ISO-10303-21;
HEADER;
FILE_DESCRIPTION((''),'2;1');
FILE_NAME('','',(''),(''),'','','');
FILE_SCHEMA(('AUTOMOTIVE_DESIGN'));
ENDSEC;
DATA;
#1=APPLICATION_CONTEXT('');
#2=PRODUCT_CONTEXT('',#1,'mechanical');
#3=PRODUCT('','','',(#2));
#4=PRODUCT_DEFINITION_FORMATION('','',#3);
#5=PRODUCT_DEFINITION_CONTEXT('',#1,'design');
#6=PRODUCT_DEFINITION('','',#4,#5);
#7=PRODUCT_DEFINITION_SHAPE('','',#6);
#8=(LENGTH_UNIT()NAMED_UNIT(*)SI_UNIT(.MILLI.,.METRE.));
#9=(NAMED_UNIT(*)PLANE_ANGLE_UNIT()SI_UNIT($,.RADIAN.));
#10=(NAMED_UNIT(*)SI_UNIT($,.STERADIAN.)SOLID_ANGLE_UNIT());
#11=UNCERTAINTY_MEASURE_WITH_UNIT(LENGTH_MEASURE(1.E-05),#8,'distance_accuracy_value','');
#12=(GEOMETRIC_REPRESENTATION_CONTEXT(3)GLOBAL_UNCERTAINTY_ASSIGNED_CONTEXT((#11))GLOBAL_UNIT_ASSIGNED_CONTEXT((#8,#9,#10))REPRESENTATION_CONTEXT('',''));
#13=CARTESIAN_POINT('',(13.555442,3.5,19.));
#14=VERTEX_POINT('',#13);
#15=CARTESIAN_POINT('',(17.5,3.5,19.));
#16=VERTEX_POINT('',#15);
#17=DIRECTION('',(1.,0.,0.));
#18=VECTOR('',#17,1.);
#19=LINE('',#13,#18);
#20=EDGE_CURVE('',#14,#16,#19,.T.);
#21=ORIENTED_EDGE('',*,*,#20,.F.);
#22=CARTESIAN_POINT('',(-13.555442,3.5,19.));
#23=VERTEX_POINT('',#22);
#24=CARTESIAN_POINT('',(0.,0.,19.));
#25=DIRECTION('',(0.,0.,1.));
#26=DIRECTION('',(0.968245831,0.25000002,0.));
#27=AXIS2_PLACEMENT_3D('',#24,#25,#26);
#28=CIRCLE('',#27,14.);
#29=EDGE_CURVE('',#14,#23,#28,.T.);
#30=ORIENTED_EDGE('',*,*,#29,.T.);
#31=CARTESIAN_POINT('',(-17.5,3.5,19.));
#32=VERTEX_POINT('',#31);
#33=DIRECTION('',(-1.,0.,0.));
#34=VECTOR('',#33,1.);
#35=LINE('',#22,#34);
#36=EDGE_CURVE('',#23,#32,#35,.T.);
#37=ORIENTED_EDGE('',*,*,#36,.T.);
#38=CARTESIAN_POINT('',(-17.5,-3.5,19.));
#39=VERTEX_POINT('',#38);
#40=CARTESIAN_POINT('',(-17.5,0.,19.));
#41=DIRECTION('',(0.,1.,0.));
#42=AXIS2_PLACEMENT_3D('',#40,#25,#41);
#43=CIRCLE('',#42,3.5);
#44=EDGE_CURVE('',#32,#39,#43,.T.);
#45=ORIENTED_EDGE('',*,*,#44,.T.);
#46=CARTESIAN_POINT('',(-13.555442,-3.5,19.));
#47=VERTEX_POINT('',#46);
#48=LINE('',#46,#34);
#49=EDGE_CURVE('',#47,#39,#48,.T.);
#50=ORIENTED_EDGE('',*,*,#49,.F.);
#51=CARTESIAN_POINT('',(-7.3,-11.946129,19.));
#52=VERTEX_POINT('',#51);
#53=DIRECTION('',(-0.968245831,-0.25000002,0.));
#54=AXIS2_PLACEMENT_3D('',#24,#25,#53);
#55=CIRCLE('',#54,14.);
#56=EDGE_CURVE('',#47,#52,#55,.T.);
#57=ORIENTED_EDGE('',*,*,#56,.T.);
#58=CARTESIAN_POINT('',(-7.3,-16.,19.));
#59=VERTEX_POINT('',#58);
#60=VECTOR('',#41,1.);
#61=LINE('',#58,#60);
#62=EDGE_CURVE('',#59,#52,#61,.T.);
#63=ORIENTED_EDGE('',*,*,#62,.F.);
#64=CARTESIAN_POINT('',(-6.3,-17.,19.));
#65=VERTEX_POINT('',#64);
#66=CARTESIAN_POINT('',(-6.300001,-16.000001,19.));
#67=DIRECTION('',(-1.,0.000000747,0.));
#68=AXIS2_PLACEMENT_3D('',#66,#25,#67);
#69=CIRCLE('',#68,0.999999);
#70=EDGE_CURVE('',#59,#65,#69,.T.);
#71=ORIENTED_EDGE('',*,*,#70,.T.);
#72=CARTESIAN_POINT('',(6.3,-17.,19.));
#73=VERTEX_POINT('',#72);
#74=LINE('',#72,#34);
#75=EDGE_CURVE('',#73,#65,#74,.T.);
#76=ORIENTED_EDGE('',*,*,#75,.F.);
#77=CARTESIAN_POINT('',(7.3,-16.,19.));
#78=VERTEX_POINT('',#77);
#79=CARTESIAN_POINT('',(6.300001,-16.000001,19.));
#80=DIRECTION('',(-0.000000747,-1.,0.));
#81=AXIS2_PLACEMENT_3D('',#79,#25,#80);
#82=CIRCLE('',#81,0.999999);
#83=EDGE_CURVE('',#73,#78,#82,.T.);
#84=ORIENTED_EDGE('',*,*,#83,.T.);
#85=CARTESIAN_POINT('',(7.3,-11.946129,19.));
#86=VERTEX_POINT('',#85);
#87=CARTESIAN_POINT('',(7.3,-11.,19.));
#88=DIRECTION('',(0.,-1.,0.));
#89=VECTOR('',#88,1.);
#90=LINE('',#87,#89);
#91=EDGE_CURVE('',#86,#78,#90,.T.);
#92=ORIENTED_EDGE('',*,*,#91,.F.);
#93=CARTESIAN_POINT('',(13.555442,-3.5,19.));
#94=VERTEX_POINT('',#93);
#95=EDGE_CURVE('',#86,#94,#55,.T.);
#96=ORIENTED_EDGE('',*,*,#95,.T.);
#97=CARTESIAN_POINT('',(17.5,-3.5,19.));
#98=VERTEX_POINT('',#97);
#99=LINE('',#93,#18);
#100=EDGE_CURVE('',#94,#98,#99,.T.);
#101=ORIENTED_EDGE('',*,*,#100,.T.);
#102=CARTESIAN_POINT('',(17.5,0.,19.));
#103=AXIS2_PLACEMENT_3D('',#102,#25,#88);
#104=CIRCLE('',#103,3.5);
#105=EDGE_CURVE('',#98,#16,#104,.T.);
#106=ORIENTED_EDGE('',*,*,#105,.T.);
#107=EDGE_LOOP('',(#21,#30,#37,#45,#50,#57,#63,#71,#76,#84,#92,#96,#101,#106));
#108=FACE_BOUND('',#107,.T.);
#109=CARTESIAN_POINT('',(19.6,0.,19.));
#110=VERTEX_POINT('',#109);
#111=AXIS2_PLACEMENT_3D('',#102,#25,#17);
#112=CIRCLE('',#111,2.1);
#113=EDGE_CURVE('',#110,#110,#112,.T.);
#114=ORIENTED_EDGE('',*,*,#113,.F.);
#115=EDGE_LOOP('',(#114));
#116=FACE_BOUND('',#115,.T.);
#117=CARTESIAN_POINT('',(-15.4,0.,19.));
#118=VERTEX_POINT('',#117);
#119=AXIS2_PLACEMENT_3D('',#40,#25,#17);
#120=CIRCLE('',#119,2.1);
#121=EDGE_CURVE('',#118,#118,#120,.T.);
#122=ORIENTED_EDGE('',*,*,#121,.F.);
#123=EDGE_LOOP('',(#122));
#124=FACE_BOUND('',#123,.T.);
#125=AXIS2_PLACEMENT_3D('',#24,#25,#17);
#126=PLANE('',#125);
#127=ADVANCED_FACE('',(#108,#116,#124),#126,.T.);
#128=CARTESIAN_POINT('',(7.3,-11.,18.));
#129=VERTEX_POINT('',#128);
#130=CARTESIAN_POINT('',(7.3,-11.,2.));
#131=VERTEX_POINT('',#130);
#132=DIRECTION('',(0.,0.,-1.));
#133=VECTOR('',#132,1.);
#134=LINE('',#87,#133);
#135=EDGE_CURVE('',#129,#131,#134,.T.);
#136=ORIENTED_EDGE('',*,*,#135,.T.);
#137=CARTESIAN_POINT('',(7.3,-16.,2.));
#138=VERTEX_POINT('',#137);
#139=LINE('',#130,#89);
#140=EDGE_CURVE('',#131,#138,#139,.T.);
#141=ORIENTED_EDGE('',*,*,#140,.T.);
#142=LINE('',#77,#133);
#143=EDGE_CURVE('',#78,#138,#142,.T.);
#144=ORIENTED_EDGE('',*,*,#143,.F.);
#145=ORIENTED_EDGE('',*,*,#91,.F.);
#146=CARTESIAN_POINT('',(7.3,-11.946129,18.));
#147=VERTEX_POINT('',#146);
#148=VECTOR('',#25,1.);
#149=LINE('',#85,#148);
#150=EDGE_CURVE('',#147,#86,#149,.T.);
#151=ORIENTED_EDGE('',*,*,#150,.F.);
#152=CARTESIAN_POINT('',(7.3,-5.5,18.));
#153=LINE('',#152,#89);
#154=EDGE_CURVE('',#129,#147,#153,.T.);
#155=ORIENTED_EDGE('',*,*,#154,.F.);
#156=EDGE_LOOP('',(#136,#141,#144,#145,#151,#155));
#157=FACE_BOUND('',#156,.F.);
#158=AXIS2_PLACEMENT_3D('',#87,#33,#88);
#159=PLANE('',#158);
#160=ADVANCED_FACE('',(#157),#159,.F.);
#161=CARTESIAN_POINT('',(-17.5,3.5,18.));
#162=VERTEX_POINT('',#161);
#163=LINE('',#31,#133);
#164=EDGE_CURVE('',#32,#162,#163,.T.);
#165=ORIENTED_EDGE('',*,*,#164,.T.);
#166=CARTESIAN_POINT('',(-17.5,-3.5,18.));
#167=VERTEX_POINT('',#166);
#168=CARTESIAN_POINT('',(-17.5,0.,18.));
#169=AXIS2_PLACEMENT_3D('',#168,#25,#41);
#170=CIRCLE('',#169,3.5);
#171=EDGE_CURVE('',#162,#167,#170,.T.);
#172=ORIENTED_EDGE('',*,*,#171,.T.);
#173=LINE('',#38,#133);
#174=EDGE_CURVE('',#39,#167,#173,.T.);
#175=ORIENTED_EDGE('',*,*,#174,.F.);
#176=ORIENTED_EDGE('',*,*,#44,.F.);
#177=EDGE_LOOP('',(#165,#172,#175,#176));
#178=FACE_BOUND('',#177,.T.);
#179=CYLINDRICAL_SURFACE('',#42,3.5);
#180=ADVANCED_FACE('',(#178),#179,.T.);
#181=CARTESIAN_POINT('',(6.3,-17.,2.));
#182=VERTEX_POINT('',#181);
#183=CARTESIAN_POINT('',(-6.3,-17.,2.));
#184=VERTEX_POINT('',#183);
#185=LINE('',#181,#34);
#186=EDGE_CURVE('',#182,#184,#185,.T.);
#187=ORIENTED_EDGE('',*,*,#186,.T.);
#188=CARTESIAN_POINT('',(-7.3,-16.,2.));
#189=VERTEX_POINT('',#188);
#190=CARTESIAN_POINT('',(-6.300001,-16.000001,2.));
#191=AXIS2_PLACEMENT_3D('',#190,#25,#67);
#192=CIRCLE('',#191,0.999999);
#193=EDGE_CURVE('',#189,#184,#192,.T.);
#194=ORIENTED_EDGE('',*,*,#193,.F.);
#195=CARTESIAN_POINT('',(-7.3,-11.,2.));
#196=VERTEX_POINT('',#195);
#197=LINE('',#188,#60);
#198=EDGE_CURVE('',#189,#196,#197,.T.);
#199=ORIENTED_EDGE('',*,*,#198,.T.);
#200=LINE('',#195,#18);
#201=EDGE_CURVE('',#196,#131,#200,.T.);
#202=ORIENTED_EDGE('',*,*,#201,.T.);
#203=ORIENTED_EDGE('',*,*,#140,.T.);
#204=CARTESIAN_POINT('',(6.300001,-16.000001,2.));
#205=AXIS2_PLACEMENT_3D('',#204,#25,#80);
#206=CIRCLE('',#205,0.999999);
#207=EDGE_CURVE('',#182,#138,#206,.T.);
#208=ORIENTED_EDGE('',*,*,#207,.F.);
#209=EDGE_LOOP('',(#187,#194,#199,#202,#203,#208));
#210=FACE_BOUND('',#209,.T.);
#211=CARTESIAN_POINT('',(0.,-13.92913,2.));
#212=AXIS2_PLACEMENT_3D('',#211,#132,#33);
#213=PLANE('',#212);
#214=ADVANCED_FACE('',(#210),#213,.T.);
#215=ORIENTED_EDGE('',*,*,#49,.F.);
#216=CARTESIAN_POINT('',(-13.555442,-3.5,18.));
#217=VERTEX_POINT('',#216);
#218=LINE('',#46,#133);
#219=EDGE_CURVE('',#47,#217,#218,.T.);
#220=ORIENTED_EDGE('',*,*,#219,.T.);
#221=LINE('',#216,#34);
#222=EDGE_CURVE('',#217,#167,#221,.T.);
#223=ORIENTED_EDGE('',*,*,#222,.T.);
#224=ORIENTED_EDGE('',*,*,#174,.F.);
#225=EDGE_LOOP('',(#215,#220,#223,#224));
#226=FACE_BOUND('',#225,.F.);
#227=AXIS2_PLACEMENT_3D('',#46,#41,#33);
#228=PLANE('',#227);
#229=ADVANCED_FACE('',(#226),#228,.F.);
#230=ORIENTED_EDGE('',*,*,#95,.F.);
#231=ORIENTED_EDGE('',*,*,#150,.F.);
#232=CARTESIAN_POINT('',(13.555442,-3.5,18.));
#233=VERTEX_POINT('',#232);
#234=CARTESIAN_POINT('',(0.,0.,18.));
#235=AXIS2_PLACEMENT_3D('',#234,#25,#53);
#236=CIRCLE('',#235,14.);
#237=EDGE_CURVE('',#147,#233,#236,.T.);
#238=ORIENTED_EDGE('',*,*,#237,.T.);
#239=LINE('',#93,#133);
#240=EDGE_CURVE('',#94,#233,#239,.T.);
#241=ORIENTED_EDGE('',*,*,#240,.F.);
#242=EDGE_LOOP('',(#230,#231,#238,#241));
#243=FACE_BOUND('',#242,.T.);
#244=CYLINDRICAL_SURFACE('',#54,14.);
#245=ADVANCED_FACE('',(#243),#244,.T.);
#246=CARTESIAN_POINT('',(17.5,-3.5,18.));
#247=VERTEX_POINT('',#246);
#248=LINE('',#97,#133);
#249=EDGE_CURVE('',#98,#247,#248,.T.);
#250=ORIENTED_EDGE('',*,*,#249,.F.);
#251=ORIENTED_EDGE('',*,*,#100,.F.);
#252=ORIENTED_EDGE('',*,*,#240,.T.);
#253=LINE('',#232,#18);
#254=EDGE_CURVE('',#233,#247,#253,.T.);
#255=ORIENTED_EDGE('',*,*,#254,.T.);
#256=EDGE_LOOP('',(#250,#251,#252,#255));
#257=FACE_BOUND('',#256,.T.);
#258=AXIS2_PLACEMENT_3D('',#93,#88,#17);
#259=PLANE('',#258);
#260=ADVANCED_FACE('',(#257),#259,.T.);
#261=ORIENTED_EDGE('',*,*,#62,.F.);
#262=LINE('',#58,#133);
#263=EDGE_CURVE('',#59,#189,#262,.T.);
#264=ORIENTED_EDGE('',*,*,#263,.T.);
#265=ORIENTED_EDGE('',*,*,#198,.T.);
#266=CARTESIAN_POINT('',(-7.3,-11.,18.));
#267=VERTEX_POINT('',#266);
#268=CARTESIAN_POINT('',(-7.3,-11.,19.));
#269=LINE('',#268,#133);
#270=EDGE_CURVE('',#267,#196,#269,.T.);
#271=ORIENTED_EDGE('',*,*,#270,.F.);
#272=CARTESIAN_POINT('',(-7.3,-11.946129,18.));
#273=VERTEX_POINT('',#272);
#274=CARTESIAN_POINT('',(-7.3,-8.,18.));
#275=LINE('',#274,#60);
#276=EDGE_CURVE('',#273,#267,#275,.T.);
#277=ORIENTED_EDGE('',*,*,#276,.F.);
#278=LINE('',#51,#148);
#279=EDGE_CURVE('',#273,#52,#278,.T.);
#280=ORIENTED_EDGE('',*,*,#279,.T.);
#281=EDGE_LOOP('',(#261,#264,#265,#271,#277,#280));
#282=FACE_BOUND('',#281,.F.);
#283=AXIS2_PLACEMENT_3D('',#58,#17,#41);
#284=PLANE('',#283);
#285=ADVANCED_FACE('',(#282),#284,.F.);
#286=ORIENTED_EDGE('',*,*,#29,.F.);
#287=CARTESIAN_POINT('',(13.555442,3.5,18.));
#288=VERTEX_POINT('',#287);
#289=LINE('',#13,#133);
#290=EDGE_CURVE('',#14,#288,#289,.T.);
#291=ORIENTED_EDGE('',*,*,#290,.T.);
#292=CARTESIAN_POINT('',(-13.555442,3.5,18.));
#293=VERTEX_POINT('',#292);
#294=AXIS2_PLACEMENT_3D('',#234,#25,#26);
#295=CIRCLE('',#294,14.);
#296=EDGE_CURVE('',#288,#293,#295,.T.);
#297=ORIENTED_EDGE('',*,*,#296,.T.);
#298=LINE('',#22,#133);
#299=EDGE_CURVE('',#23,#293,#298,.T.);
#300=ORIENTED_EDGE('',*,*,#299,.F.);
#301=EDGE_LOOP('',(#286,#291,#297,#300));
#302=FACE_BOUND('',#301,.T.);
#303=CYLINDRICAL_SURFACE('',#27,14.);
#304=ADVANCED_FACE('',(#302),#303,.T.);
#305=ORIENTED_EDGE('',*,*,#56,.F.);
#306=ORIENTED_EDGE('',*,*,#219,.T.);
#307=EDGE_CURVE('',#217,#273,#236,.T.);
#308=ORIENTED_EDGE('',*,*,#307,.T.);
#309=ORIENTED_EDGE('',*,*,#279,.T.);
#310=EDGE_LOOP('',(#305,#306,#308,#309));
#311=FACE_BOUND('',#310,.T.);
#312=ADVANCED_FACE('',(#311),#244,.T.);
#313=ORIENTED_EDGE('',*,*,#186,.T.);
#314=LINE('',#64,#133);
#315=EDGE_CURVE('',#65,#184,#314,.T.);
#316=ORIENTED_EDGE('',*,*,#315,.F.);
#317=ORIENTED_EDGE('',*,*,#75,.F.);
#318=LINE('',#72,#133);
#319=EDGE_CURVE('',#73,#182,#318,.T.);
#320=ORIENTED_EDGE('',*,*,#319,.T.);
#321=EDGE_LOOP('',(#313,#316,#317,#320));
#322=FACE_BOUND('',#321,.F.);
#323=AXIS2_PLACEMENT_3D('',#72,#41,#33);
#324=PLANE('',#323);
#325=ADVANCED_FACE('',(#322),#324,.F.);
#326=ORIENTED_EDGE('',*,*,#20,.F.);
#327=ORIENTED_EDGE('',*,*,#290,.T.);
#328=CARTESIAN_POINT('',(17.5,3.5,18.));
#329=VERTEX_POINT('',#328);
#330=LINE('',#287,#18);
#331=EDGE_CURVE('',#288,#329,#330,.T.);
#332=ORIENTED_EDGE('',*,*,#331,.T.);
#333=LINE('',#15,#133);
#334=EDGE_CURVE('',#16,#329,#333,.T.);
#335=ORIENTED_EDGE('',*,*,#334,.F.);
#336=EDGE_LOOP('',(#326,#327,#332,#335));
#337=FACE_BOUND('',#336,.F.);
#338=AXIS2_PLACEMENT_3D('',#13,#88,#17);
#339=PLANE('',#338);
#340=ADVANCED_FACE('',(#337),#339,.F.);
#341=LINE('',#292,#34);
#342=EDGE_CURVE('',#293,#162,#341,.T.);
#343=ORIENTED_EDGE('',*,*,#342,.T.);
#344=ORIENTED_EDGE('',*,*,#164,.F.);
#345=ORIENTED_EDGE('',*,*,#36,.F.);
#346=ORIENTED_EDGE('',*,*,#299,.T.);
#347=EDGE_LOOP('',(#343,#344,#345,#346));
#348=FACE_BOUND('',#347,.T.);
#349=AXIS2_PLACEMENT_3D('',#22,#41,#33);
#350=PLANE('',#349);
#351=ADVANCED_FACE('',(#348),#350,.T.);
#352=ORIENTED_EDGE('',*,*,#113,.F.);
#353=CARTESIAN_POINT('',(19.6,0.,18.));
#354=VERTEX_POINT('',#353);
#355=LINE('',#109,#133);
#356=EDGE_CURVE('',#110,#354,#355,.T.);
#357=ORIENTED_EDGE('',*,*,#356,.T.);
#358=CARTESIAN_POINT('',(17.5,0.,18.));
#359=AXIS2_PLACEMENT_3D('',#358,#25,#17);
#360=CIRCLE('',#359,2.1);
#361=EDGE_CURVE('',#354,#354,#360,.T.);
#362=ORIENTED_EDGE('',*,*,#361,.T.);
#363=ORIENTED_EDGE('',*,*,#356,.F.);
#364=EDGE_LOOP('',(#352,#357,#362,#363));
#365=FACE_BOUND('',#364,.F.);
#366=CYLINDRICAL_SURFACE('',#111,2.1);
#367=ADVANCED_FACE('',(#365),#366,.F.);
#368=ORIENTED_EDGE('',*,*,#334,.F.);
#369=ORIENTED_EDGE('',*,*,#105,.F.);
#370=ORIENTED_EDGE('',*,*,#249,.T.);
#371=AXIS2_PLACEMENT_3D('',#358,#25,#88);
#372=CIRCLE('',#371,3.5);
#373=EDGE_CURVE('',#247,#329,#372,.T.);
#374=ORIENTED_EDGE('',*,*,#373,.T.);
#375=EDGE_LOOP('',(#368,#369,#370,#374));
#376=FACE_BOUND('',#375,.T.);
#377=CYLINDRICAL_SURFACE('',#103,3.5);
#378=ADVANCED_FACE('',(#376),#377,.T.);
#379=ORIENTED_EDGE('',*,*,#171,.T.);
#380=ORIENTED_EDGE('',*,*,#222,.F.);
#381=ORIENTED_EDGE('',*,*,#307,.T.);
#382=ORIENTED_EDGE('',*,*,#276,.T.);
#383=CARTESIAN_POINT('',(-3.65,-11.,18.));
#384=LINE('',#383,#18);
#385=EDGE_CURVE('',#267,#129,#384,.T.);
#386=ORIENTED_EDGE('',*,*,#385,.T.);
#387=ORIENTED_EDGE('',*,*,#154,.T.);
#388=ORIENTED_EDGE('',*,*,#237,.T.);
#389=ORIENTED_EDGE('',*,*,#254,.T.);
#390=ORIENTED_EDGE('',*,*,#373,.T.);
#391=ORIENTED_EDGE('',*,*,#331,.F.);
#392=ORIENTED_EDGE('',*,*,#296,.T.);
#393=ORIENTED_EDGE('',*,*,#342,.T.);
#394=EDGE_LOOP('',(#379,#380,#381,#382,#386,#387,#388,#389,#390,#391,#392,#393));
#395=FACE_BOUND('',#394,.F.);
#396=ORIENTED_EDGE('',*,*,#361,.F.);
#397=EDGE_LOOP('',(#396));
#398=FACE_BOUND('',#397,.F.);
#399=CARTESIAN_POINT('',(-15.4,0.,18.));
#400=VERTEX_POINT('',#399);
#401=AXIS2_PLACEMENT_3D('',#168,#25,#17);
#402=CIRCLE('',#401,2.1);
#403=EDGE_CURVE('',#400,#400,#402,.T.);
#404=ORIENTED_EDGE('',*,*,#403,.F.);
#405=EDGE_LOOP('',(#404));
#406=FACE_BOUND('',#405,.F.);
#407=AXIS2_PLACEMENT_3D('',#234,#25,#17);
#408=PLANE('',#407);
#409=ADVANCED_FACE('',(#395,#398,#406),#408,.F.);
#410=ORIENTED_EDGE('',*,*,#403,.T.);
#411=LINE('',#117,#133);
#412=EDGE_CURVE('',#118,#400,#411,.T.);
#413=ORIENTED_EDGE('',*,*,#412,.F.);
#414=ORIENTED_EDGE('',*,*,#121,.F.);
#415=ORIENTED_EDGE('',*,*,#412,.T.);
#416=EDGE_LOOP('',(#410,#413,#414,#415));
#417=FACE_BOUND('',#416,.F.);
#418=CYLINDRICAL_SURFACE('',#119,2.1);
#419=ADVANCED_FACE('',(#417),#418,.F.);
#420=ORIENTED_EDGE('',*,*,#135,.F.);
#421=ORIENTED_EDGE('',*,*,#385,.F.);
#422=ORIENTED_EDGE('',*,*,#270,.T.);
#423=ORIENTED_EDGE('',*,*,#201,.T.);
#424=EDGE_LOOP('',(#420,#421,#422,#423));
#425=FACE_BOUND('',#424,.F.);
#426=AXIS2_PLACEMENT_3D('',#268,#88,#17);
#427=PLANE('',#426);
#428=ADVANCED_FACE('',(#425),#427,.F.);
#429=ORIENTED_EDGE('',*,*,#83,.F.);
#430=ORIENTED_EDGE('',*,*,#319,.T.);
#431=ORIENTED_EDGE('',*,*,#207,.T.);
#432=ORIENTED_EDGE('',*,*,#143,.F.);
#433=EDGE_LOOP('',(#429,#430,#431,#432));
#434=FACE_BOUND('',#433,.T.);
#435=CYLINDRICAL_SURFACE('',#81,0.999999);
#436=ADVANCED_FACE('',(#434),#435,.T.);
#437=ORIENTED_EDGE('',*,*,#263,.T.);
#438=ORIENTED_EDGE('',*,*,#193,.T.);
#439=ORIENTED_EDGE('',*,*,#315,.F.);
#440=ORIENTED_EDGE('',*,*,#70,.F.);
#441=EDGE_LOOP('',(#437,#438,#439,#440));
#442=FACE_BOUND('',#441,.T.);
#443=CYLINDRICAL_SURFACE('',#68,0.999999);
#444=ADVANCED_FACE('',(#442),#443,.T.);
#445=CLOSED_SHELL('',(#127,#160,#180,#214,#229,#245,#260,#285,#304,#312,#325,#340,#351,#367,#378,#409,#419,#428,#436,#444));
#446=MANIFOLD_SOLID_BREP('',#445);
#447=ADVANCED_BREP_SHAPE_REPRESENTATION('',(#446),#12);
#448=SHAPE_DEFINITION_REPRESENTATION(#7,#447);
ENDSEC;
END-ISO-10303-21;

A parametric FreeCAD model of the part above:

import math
import FreeCAD as App
import Part
import Sketcher

V = App.Vector
Q = App.Units.Quantity

doc = App.newDocument("Part")
params = doc.addObject("Spreadsheet::Sheet", "Params")
for row, (alias, value) in enumerate([
    ("sketch1_radius", "14 mm"),
    ("sketch1_radius2", "3.5 mm"),
    ("pad1_length", "1 mm"),
    ("sketch2_diameter", "4.2 mm"),
    ("pocket1_length", "25 mm"),
    ("sketch3_radius", "0.999999 mm"),
    ("sketch3_height", "5 mm"),
    ("sketch3_width", "14.6 mm"),
    ("pad2_length", "17 mm"),
], start=1):
    params.set(f"A{row}", alias)
    params.set(f"B{row}", "=" + value)
    params.setAlias(f"B{row}", alias)

body = doc.addObject("PartDesign::Body", "Body")

# Sketch on XY plane
sketch1 = body.newObject("Sketcher::SketchObject", "Sketch")
sketch1.AttachmentSupport = (doc.getObject("XY_Plane"), [""])
sketch1.MapMode = "FlatFace"
sketch1.AttachmentOffset = App.Placement(V(0, 0, 19), App.Rotation())
sketch1.addGeometry([
    Part.ArcOfCircle(Part.Circle(V(0, 0, 0), V(0, 0, 1), 14), math.radians(-166), math.radians(-14)),  # 0
    Part.LineSegment(V(13.6, -3.5, 0), V(17.5, -3.5, 0)),  # 1
    Part.ArcOfCircle(Part.Circle(V(17.5, 0, 0), V(0, 0, 1), 3.5), math.radians(-90), math.radians(90)),  # 2
    Part.LineSegment(V(17.5, 3.5, 0), V(13.6, 3.5, 0)),  # 3
    Part.ArcOfCircle(Part.Circle(V(0, 0, 0), V(0, 0, 1), 14), math.radians(14), math.radians(166)),  # 4
    Part.LineSegment(V(-13.6, 3.5, 0), V(-17.5, 3.5, 0)),  # 5
    Part.ArcOfCircle(Part.Circle(V(-17.5, 0, 0), V(0, 0, 1), 3.5), math.radians(90), math.radians(270)),  # 6
    Part.LineSegment(V(-17.5, -3.5, 0), V(-13.6, -3.5, 0)),  # 7
], False)
sketch1.addConstraint([
    Sketcher.Constraint("Coincident", 0, 2, 1, 1),
    Sketcher.Constraint("Tangent", 1, 2, 2, 1),
    Sketcher.Constraint("Tangent", 2, 2, 3, 1),
    Sketcher.Constraint("Coincident", 3, 2, 4, 1),
    Sketcher.Constraint("Coincident", 4, 2, 5, 1),
    Sketcher.Constraint("Tangent", 5, 2, 6, 1),
    Sketcher.Constraint("Tangent", 6, 2, 7, 1),
    Sketcher.Constraint("Coincident", 7, 2, 0, 1),
    Sketcher.Constraint("Horizontal", 1),
    Sketcher.Constraint("Horizontal", 3),
    Sketcher.Constraint("Horizontal", 5),
    Sketcher.Constraint("Horizontal", 7),
    Sketcher.Constraint("Coincident", 0, 3, -1, 1),
    Sketcher.Constraint("Coincident", 4, 3, -1, 1),
    Sketcher.Constraint("Equal", 0, 4),
    Sketcher.Constraint("Equal", 2, 6),
    Sketcher.Constraint("Symmetric", 2, 3, 6, 3, -1, 1),
    Sketcher.Constraint("PointOnObject", 2, 3, -1),
    Sketcher.Constraint("Radius", 0, Q("14 mm")),
    Sketcher.Constraint("Radius", 2, Q("3.5 mm")),
    Sketcher.Constraint("DistanceX", 6, 3, 2, 3, Q("35 mm")),
])
sketch1.setExpression("Constraints[18]", "Params.sketch1_radius")
sketch1.setExpression("Constraints[19]", "Params.sketch1_radius2")
pad1 = body.newObject("PartDesign::Pad", "Pad")
pad1.Profile = sketch1
pad1.setExpression("Length", "Params.pad1_length")
pad1.Reversed = True

# Sketch on XY plane
sketch2 = body.newObject("Sketcher::SketchObject", "Sketch001")
sketch2.AttachmentSupport = (doc.getObject("XY_Plane"), [""])
sketch2.MapMode = "FlatFace"
sketch2.AttachmentOffset = App.Placement(V(0, 0, 19), App.Rotation())
sketch2.addGeometry([
    Part.Circle(V(-17.5, 0, 0), V(0, 0, 1), 2.1),
    Part.Circle(V(17.5, 0, 0), V(0, 0, 1), 2.1),
], False)
sketch2.addConstraint([
    Sketcher.Constraint("Equal", 0, 1),
    Sketcher.Constraint("Symmetric", 0, 3, 1, 3, -1, 1),
    Sketcher.Constraint("PointOnObject", 0, 3, -1),
    Sketcher.Constraint("Diameter", 0, Q("4.2 mm")),
    Sketcher.Constraint("DistanceX", 0, 3, 1, 3, Q("35 mm")),
])
sketch2.setExpression("Constraints[3]", "Params.sketch2_diameter")
pocket1 = body.newObject("PartDesign::Pocket", "Pocket")
pocket1.Profile = sketch2
pocket1.setExpression("Length", "Params.pocket1_length")

# Sketch on XY plane
sketch3 = body.newObject("Sketcher::SketchObject", "Sketch002")
sketch3.AttachmentSupport = (doc.getObject("XY_Plane"), [""])
sketch3.MapMode = "FlatFace"
sketch3.AttachmentOffset = App.Placement(V(0, 0, 19), App.Rotation())
sketch3.addGeometry([
    Part.LineSegment(V(7.3, -11, 0), V(-7.3, -11, 0)),  # 0
    Part.LineSegment(V(-7.3, -11, 0), V(-7.3, -16, 0)),  # 1
    Part.ArcOfCircle(Part.Circle(V(-6.3, -16, 0), V(0, 0, 1), 1), math.radians(180), math.radians(270)),  # 2
    Part.LineSegment(V(-6.3, -17, 0), V(6.3, -17, 0)),  # 3
    Part.ArcOfCircle(Part.Circle(V(6.3, -16, 0), V(0, 0, 1), 1), math.radians(-90), math.radians(0)),  # 4
    Part.LineSegment(V(7.3, -16, 0), V(7.3, -11, 0)),  # 5
], False)
sketch3.addConstraint([
    Sketcher.Constraint("Coincident", 0, 2, 1, 1),
    Sketcher.Constraint("Tangent", 1, 2, 2, 1),
    Sketcher.Constraint("Tangent", 2, 2, 3, 1),
    Sketcher.Constraint("Tangent", 3, 2, 4, 1),
    Sketcher.Constraint("Tangent", 4, 2, 5, 1),
    Sketcher.Constraint("Coincident", 5, 2, 0, 1),
    Sketcher.Constraint("Horizontal", 0),
    Sketcher.Constraint("Vertical", 1),
    Sketcher.Constraint("Horizontal", 3),
    Sketcher.Constraint("Vertical", 5),
    Sketcher.Constraint("Equal", 2, 4),
    Sketcher.Constraint("Radius", 2, Q("0.999999 mm")),
    Sketcher.Constraint("DistanceY", 1, 2, 1, 1, Q("5 mm")),
    Sketcher.Constraint("DistanceX", 0, 2, 0, 1, Q("14.6 mm")),
    Sketcher.Constraint("DistanceY", 2, 3, -1, 1, Q("16.000001 mm")),
    Sketcher.Constraint("DistanceX", 2, 3, -1, 1, Q("6.300001 mm")),
])
sketch3.setExpression("Constraints[11]", "Params.sketch3_radius")
sketch3.setExpression("Constraints[12]", "Params.sketch3_height")
sketch3.setExpression("Constraints[13]", "Params.sketch3_width")
pad2 = body.newObject("PartDesign::Pad", "Pad001")
pad2.Profile = sketch3
pad2.setExpression("Length", "Params.pad2_length")
pad2.Reversed = True

doc.recompute()
